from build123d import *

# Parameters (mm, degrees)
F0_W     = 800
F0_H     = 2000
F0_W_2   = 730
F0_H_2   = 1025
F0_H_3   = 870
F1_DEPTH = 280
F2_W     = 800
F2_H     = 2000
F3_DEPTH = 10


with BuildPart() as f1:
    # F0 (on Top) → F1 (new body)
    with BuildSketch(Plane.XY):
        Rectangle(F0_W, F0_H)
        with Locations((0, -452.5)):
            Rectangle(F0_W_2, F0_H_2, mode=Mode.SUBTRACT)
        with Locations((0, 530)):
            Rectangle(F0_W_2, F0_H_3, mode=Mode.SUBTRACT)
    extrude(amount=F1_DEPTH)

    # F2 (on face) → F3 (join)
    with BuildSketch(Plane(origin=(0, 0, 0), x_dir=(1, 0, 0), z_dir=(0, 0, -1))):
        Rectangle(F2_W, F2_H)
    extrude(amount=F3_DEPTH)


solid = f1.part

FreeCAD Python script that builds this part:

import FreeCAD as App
import Part
import Sketcher
from FreeCAD import Vector


def add_polygon(sketch, points):
    """Adds a closed chain of lines whose ends are joined by coincident constraints."""
    first, n = sketch.GeometryCount, len(points)
    for a, b in zip(points, points[1:] + points[:1]):
        sketch.addGeometry(Part.LineSegment(App.Vector(*a, 0), App.Vector(*b, 0)), False)
    for i in range(n):
        sketch.addConstraint(Sketcher.Constraint("Coincident", first + i, 2, first + (i + 1) % n, 1))

doc = App.newDocument("Part")
body = doc.addObject("PartDesign::Body", "Body")

sketch1 = body.newObject("Sketcher::SketchObject", "Sketch")
sketch1.AttachmentSupport = (doc.getObject("XY_Plane"), [""])
sketch1.MapMode = "FlatFace"
add_polygon(sketch1, [(-400, 1000), (-400, -1000), (400, -1000), (400, 1000)])
add_polygon(sketch1, [(365, -965), (-365, -965), (-365, 60), (365, 60)])
add_polygon(sketch1, [(365, 95), (-365, 95), (-365, 965), (365, 965)])
sketch1.addConstraint([
    Sketcher.Constraint("Vertical", 0),
    Sketcher.Constraint("Horizontal", 1),
    Sketcher.Constraint("Vertical", 2),
    Sketcher.Constraint("Horizontal", 3),
    Sketcher.Constraint("Horizontal", 4),
    Sketcher.Constraint("Vertical", 5),
    Sketcher.Constraint("Horizontal", 6),
    Sketcher.Constraint("Vertical", 7),
    Sketcher.Constraint("Horizontal", 8),
    Sketcher.Constraint("Vertical", 9),
    Sketcher.Constraint("Horizontal", 10),
    Sketcher.Constraint("Vertical", 11),
    Sketcher.Constraint("Symmetric", 0, 2, 2, 2, -1, 1),
    Sketcher.Constraint("Symmetric", 7, 2, 9, 2, -1, 1),
    Sketcher.Constraint("Vertical", 5, 2, 8, 2),
    Sketcher.Constraint("Vertical", 7, 2, 10, 2),
    Sketcher.Constraint("DistanceX", 1, 1, 1, 2, 800.0),
    Sketcher.Constraint("DistanceX", 4, 2, 4, 1, 730.0),
    Sketcher.Constraint("DistanceY", 0, 2, 0, 1, 2000.0),
    Sketcher.Constraint("DistanceY", 5, 1, 5, 2, 1025.0),
    Sketcher.Constraint("DistanceY", 9, 1, 9, 2, 870.0),
    Sketcher.Constraint("DistanceY", 4, 2, -1, 1, 965.0),
])
pad1 = body.newObject("PartDesign::Pad", "Pad")
pad1.Profile = sketch1
pad1.Length = 280

sketch2 = body.newObject("Sketcher::SketchObject", "Sketch001")
sketch2.AttachmentSupport = (doc.getObject("XY_Plane"), [""])
sketch2.MapMode = "FlatFace"
add_polygon(sketch2, [(-400, -1000), (-400, 1000), (400, 1000), (400, -1000)])
sketch2.addConstraint([
    Sketcher.Constraint("Vertical", 0),
    Sketcher.Constraint("Horizontal", 1),
    Sketcher.Constraint("Vertical", 2),
    Sketcher.Constraint("Horizontal", 3),
    Sketcher.Constraint("Symmetric", 0, 2, 2, 2, -1, 1),
    Sketcher.Constraint("DistanceX", 1, 1, 1, 2, 800.0),
    Sketcher.Constraint("DistanceY", 0, 1, 0, 2, 2000.0),
])
pad2 = body.newObject("PartDesign::Pad", "Pad001")
pad2.Profile = sketch2
pad2.Length = 10
pad2.Reversed = True

doc.recompute()
